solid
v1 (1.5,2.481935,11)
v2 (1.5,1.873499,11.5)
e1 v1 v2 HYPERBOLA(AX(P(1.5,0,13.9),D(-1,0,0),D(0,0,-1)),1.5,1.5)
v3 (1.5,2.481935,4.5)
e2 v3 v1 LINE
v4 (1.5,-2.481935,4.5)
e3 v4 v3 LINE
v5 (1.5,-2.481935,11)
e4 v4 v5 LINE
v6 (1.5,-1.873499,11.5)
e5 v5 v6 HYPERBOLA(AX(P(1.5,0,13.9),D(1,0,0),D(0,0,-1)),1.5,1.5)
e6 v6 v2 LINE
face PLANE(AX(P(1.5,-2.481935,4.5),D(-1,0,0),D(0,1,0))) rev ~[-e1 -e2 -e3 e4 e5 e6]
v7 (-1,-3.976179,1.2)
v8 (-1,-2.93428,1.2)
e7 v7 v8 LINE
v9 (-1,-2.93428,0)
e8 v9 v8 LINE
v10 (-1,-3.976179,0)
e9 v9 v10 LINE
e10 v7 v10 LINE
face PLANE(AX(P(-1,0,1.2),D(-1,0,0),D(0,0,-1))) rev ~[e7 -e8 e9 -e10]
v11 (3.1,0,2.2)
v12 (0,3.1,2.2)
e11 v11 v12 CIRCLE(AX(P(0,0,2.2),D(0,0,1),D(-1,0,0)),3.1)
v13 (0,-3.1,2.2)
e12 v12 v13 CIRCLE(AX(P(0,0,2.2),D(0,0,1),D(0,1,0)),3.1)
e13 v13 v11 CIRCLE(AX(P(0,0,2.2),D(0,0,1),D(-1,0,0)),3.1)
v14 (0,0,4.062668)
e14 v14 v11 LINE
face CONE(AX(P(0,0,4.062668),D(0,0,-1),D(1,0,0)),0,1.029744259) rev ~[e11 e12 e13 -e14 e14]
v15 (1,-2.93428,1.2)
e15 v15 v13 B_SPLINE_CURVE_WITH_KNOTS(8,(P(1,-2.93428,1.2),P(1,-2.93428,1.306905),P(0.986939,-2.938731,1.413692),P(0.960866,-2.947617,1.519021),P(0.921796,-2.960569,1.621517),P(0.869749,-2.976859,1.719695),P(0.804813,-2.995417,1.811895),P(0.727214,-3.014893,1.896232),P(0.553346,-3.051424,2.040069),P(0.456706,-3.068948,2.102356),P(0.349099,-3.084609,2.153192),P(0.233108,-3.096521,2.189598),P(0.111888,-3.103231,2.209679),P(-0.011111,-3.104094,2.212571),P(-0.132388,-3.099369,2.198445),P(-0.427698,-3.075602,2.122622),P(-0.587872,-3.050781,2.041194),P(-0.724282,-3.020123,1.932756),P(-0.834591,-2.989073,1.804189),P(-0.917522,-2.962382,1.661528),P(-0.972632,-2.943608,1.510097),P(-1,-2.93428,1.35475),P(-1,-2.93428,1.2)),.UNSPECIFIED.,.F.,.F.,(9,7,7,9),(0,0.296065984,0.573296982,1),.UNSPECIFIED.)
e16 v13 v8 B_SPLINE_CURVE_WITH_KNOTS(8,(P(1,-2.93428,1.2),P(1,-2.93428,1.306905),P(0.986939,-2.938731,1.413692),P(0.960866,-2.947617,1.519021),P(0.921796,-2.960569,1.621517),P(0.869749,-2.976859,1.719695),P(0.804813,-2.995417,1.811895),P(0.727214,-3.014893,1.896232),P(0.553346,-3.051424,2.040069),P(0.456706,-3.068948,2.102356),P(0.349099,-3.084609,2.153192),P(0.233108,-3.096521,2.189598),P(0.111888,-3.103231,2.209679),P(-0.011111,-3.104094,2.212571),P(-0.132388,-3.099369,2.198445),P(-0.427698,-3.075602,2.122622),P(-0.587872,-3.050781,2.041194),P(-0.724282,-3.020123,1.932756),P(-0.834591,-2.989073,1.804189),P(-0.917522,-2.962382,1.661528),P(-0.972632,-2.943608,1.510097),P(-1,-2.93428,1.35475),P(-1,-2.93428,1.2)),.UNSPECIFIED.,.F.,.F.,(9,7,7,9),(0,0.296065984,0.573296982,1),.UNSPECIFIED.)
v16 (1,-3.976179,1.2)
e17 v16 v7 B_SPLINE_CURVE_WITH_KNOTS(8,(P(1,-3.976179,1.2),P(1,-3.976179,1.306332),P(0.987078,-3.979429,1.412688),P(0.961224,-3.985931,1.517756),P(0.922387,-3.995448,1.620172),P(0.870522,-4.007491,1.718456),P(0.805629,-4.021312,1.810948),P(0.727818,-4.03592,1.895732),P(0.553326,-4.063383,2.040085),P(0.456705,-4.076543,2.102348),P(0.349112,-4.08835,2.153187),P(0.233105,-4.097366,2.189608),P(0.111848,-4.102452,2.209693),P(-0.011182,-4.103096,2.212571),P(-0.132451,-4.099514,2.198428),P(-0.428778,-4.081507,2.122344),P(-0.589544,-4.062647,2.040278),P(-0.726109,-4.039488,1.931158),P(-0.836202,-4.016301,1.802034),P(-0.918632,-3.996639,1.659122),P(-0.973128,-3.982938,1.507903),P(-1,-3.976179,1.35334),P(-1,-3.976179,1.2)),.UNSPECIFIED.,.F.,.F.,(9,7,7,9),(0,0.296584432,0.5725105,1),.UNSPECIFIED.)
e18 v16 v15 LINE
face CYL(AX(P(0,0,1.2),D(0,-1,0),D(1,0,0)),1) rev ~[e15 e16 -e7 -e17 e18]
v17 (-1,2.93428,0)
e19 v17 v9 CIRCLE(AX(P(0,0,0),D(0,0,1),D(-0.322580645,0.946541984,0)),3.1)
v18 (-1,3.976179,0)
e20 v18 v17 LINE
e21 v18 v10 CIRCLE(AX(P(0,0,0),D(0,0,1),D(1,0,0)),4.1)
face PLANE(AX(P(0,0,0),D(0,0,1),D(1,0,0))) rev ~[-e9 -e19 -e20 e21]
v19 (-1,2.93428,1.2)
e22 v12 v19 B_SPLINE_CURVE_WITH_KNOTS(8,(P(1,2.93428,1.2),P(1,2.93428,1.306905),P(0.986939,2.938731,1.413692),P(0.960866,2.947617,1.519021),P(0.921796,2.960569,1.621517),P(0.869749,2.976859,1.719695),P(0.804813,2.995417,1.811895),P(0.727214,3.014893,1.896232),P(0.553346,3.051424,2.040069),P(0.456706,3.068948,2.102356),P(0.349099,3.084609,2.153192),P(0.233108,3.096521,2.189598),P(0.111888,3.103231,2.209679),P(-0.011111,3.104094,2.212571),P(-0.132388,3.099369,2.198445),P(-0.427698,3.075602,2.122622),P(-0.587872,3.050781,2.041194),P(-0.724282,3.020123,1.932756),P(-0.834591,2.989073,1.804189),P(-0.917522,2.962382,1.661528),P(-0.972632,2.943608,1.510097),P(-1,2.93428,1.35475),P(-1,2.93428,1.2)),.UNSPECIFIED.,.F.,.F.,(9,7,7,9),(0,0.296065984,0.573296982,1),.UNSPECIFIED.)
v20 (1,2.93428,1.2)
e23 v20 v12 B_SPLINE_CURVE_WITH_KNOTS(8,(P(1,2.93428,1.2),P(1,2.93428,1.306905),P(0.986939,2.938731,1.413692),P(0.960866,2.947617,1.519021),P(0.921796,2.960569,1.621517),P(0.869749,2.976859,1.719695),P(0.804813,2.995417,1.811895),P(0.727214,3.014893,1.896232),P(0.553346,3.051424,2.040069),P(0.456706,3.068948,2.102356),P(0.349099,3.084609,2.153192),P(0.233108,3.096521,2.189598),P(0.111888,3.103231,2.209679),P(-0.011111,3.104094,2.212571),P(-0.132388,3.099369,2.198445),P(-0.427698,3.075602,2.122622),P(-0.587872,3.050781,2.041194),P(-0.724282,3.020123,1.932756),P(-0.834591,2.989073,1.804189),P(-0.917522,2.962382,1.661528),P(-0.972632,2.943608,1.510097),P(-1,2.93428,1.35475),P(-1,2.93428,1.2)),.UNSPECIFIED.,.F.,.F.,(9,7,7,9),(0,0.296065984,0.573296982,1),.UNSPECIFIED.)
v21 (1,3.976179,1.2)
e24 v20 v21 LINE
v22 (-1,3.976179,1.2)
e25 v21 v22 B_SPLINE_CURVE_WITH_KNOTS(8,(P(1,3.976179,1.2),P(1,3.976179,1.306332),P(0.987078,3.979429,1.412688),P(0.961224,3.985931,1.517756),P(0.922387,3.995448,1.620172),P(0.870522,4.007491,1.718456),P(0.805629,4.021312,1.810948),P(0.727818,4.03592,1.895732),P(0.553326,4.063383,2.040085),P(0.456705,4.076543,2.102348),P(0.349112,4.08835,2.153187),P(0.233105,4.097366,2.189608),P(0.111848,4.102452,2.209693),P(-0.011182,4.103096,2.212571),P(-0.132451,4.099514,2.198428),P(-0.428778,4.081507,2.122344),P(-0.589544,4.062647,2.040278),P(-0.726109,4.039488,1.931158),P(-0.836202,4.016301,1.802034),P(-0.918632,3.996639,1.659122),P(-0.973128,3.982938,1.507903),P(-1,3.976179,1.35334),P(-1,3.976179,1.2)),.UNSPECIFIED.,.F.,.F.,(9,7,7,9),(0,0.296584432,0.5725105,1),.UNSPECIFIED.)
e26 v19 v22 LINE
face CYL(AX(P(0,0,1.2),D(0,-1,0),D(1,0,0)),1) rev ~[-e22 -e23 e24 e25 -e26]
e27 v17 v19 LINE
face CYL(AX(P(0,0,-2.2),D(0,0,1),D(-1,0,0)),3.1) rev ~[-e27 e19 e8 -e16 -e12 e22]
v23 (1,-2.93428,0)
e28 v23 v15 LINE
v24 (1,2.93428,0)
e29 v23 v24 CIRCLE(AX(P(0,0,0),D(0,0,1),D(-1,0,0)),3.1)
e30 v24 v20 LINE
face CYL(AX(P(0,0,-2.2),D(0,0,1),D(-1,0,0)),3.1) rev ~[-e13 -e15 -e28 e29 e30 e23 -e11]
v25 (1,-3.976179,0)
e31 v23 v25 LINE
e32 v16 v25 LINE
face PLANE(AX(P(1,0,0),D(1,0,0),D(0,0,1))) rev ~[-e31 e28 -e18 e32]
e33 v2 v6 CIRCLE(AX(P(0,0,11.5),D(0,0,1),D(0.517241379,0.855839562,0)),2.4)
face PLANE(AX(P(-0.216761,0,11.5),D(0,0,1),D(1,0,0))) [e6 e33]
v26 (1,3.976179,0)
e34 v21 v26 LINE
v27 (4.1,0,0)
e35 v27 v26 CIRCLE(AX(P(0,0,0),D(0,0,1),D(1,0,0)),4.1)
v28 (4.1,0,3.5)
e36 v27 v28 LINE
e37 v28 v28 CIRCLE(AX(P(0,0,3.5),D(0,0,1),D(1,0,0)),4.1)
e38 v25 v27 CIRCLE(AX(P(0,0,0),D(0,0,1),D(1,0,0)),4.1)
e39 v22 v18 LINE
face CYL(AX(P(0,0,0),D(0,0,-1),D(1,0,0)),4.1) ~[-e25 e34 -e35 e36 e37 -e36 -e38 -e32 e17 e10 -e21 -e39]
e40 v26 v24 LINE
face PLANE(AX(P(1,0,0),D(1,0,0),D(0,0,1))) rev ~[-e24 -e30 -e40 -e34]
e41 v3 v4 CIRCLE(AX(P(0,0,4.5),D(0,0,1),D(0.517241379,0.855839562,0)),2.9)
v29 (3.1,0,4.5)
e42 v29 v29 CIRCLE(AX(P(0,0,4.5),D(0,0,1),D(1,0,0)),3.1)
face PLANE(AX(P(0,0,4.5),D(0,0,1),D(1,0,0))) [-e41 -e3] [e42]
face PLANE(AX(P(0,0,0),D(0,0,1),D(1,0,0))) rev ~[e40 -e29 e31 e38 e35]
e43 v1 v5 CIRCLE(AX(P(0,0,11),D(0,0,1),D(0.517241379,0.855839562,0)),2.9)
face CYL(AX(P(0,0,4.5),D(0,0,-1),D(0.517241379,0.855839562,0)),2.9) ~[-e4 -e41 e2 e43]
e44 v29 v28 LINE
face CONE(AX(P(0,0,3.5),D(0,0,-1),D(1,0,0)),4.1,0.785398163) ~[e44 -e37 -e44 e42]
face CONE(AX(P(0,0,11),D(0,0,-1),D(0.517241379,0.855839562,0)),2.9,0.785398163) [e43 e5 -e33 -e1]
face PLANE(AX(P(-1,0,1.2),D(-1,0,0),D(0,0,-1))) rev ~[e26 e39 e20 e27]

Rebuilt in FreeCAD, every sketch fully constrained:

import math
import FreeCAD as App
import Part
import Sketcher
from FreeCAD import Vector
Q = App.Units.Quantity


def edges_at(feature, points):
    """Names of the edges that pass closest to the given points."""
    edges = feature.Shape.Edges
    near = lambda p: min(range(len(edges)), key=lambda i: edges[i].distToShape(Part.Vertex(*p))[0])
    return sorted({f"Edge{near(p) + 1}" for p in points})

doc = App.newDocument("Part")
body = doc.addObject("PartDesign::Body", "Body")

# Sketch on XY plane
sketch1 = doc.addObject("Sketcher::SketchObject", "Sketch")
body.addObject(sketch1)
sketch1.AttachmentSupport = (doc.XY_Plane, [""])
sketch1.MapMode = "FlatFace"
sketch1.addGeometry(Part.Circle(Vector(0, 0, 0), Vector(0, 0, 1), 4.1), False)
sketch1.addConstraint([
    Sketcher.Constraint("Coincident", 0, 3, -1, 1),
    Sketcher.Constraint("Diameter", 0, Q("8.2 mm")),
])
pad1 = doc.addObject("PartDesign::Pad", "Pad")
body.addObject(pad1)
pad1.Profile = sketch1
pad1.Length = 4.5

# Sketch on XY plane
sketch2 = doc.addObject("Sketcher::SketchObject", "Sketch001")
body.addObject(sketch2)
sketch2.AttachmentSupport = (doc.XY_Plane, [""])
sketch2.MapMode = "FlatFace"
sketch2.addGeometry(Part.Circle(Vector(0, 0, 0), Vector(0, 0, 1), 3.1), False)
sketch2.addConstraint([
    Sketcher.Constraint("Coincident", 0, 3, -1, 1),
    Sketcher.Constraint("Diameter", 0, Q("6.2 mm")),
])
doc.recompute()
hole = doc.addObject("PartDesign::Hole", "Hole")
body.addObject(hole)
hole.Profile = sketch2
hole.ThreadType = "None"
hole.Diameter = 6.2
hole.DepthType = "Dimension"
hole.Depth = 2.2
hole.DrillPoint = "Angled"
hole.DrillPointAngle = 118
hole.Reversed = True

# Sketch on XY plane
sketch3 = doc.addObject("Sketcher::SketchObject", "Sketch002")
body.addObject(sketch3)
sketch3.AttachmentSupport = (doc.XY_Plane, [""])
sketch3.MapMode = "FlatFace"
sketch3.AttachmentOffset = App.Placement(Vector(0, 0, 4.5), App.Rotation())
sketch3.addGeometry([
    Part.LineSegment(Vector(1.5, -2.481935, 0), Vector(1.5, 2.481935, 0)),
    Part.ArcOfCircle(Part.Circle(Vector(0, 0, 0), Vector(0, 0, 1), 2.9), math.radians(58.85261), math.radians(301.14739)),
], False)
sketch3.addConstraint([
    Sketcher.Constraint("Coincident", 0, 1, 1, 2),
    Sketcher.Constraint("Coincident", 1, 1, 0, 2),
    Sketcher.Constraint("Vertical", 0),
    Sketcher.Constraint("Coincident", 1, 3, -1, 1),
    Sketcher.Constraint("Radius", 1, Q("2.9 mm")),
    Sketcher.Constraint("DistanceX", -1, 1, 0, 1, Q("1.5 mm")),
])
pad2 = doc.addObject("PartDesign::Pad", "Pad001")
body.addObject(pad2)
pad2.Profile = sketch3
pad2.Length = 7
doc.recompute()

chamfer = doc.addObject("PartDesign::Chamfer", "Chamfer")
body.addObject(chamfer)
chamfer.Base = (pad2, edges_at(pad2, [(-2.9, 0, 11.5)]))
chamfer.Size = 0.5
doc.recompute()

chamfer2 = doc.addObject("PartDesign::Chamfer", "Chamfer001")
body.addObject(chamfer2)
chamfer2.Base = (chamfer, edges_at(chamfer, [(-4.1, 0, 4.5)]))
chamfer2.Size = 1

# Sketch on XZ plane
sketch4 = doc.addObject("Sketcher::SketchObject", "Sketch003")
body.addObject(sketch4)
sketch4.AttachmentSupport = (doc.XZ_Plane, [""])
sketch4.MapMode = "FlatFace"
sketch4.addGeometry([
    Part.LineSegment(Vector(-1, 1.2, 0), Vector(-1, 0, 0)),
    Part.LineSegment(Vector(-1, 0, 0), Vector(1, 0, 0)),
    Part.LineSegment(Vector(1, 0, 0), Vector(1, 1.2, 0)),
    Part.ArcOfCircle(Part.Circle(Vector(0, 1.2, 0), Vector(0, 0, 1), 1), math.radians(0), math.radians(180)),
], False)
sketch4.addConstraint([
    Sketcher.Constraint("Coincident", 0, 2, 1, 1),
    Sketcher.Constraint("Coincident", 1, 2, 2, 1),
    Sketcher.Constraint("Tangent", 2, 2, 3, 1),
    Sketcher.Constraint("Tangent", 3, 2, 0, 1),
    Sketcher.Constraint("Vertical", 0),
    Sketcher.Constraint("Horizontal", 1),
    Sketcher.Constraint("Vertical", 2),
    Sketcher.Constraint("Symmetric", 0, 2, 1, 2, -1, 1),
    Sketcher.Constraint("Radius", 3, Q("1 mm")),
    Sketcher.Constraint("DistanceY", 0, 2, 0, 1, Q("1.2 mm")),
])
pocket1 = doc.addObject("PartDesign::Pocket", "Pocket")
body.addObject(pocket1)
pocket1.Profile = sketch4
pocket1.Length = 50
pocket1.Midplane = True

doc.recompute()
